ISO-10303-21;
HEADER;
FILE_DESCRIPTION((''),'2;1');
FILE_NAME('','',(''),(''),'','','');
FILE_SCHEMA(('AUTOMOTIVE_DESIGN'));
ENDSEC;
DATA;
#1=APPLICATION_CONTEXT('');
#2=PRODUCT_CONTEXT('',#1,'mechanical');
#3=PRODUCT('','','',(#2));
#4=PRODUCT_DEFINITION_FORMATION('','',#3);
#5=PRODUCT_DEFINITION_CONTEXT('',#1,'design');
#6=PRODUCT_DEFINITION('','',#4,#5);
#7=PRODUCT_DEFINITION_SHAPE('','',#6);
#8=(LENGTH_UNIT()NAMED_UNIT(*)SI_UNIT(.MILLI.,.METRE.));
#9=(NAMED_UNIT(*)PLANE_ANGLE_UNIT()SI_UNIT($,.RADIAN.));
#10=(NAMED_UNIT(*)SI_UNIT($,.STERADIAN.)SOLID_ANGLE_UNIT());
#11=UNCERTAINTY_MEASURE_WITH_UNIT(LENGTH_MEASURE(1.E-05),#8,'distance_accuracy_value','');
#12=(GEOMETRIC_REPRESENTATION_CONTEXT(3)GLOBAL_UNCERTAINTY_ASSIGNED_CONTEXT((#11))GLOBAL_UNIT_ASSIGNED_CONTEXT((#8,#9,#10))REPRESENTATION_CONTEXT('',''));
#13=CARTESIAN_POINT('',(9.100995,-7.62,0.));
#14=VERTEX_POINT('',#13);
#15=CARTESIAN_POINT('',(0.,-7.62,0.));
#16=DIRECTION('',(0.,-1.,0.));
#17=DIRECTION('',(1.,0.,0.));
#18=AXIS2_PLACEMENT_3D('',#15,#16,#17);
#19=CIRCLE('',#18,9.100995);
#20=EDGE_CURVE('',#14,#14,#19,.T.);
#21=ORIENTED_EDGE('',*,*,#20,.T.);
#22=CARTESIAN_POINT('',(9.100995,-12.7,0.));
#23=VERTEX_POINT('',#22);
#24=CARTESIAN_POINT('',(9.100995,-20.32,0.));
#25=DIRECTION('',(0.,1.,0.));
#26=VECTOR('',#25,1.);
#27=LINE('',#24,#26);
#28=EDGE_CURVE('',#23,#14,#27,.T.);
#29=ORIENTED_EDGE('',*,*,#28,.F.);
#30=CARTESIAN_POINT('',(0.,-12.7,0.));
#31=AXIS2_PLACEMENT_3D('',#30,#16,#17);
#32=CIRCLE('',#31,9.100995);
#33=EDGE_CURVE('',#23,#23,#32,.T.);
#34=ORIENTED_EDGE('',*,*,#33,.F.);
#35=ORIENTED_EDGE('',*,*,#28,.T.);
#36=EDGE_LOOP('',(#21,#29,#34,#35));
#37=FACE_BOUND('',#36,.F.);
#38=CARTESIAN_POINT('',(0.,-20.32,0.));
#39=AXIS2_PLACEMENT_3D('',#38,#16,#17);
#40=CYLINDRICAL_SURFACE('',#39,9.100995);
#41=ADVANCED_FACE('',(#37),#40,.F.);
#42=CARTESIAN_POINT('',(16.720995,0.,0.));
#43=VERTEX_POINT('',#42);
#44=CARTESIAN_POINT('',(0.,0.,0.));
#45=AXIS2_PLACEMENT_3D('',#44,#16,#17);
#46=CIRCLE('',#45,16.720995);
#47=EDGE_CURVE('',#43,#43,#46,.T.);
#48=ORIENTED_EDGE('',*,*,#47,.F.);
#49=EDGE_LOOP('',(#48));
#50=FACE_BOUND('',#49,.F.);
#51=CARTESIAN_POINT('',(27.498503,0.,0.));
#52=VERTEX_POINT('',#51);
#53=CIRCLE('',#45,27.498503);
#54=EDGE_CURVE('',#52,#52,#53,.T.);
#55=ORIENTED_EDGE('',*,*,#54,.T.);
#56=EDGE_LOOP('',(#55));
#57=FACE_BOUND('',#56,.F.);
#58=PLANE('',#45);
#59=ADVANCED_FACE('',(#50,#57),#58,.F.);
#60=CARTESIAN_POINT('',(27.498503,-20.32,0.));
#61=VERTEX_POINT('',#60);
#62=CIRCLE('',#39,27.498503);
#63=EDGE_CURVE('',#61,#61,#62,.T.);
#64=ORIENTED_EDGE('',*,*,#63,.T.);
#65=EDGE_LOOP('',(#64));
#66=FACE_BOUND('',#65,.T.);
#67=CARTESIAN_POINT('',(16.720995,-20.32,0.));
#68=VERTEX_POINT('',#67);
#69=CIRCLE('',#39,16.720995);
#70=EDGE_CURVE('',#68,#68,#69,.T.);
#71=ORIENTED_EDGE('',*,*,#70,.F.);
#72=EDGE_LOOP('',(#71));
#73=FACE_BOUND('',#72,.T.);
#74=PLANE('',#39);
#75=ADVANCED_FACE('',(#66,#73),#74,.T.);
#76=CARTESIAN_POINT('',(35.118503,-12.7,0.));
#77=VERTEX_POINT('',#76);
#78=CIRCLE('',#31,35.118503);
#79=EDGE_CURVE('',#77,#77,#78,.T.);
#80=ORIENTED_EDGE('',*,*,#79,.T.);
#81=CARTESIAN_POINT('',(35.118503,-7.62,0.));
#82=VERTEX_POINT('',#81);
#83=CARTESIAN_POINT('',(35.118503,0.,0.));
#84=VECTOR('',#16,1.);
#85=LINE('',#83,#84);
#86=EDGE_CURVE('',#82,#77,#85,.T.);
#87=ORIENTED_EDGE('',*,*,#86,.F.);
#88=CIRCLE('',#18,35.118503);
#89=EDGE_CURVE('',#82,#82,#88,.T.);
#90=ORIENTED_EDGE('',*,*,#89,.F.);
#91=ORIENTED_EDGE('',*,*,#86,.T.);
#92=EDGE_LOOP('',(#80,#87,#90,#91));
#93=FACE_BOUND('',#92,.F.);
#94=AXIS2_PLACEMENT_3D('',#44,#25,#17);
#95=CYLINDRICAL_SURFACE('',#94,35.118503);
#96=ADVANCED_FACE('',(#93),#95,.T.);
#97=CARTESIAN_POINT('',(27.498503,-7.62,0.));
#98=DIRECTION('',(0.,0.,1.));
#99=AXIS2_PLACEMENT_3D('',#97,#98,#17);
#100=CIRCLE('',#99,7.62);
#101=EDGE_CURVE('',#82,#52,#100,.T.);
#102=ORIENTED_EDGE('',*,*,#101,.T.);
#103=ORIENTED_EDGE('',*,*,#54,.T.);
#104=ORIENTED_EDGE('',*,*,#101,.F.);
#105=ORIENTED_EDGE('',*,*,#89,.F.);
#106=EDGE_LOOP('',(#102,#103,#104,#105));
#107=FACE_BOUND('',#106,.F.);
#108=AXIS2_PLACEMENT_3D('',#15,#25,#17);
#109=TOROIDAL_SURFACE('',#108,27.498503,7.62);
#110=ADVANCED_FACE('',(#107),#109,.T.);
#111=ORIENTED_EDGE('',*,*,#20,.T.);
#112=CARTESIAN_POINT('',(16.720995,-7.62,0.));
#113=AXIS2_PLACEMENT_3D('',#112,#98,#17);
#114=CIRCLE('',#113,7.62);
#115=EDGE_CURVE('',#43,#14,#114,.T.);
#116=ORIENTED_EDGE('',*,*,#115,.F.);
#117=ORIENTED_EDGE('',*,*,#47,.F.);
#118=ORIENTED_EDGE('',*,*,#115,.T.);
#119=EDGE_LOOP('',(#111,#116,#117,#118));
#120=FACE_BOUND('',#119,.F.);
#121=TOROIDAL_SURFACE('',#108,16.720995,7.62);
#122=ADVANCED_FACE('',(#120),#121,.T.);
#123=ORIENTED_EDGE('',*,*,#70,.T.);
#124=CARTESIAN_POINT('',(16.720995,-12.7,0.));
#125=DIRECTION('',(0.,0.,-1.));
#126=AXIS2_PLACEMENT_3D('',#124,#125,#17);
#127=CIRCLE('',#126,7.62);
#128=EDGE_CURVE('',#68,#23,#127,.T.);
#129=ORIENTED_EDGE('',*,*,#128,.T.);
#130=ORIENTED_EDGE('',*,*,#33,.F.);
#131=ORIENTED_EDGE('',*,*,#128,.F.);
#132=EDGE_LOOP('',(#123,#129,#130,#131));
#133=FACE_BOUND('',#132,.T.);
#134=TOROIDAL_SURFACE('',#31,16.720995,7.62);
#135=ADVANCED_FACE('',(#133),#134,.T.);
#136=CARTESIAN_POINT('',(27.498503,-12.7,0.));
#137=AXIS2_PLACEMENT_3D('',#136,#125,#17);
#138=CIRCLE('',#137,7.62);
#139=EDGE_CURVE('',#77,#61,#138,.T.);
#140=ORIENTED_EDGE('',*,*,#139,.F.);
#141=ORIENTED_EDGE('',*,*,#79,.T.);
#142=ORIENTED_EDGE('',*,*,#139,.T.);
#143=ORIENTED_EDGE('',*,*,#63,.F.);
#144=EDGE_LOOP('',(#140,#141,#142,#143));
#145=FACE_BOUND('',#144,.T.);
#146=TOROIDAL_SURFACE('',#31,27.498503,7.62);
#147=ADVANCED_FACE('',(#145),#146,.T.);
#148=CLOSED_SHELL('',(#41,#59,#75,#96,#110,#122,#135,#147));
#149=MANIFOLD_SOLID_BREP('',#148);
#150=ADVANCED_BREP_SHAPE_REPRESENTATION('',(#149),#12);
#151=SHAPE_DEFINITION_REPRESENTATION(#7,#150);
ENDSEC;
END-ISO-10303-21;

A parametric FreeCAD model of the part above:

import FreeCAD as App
import Part
import Sketcher

V = App.Vector


def edges_at(feature, points):
    """Names of the edges that pass closest to the given points."""
    edges = feature.Shape.Edges
    near = lambda p: min(range(len(edges)), key=lambda i: edges[i].distToShape(Part.Vertex(*p))[0])
    return sorted({f"Edge{near(p) + 1}" for p in points})

doc = App.newDocument("Part")
params = doc.addObject("Spreadsheet::Sheet", "Params")
for row, (alias, value) in enumerate([
    ("pad1_length", "0.8 in"),
    ("pocket1_length", "0.8 in"),
    ("fillet_radius", "0.3 in"),
], start=1):
    params.set(f"A{row}", alias)
    params.set(f"B{row}", "=" + value)
    params.setAlias(f"B{row}", alias)

body = doc.addObject("PartDesign::Body", "Body")

# Sketch on XZ plane
sketch1 = doc.addObject("Sketcher::SketchObject", "Sketch")
body.addObject(sketch1)
sketch1.AttachmentSupport = (doc.XZ_Plane, [""])
sketch1.MapMode = "FlatFace"
sketch1.addGeometry(Part.Circle(V(0, 0, 0), V(0, 0, 1), 35), False)
sketch1.addConstraint(Sketcher.Constraint("Coincident", 0, 3, -1, 1))
sketch1.addConstraint(Sketcher.Constraint("Diameter", 0, 70.237006))
pad1 = doc.addObject("PartDesign::Pad", "Pad")
body.addObject(pad1)
pad1.Profile = sketch1
pad1.setExpression("Length", "Params.pad1_length")

# Sketch on XZ plane
sketch2 = doc.addObject("Sketcher::SketchObject", "Sketch001")
body.addObject(sketch2)
sketch2.AttachmentSupport = (doc.XZ_Plane, [""])
sketch2.MapMode = "FlatFace"
sketch2.AttachmentOffset = App.Placement(V(0, 0, 0.8 * 25.4), App.Rotation())
sketch2.addGeometry(Part.Circle(V(0, 0, 0), V(0, 0, 1), 9), False)
sketch2.addConstraint(Sketcher.Constraint("Coincident", 0, 3, -1, 1))
sketch2.addConstraint(Sketcher.Constraint("Diameter", 0, 18.20199))
pocket1 = doc.addObject("PartDesign::Pocket", "Pocket")
body.addObject(pocket1)
pocket1.Profile = sketch2
pocket1.setExpression("Length", "Params.pocket1_length")
doc.recompute()

fillet = doc.addObject("PartDesign::Fillet", "Fillet")
body.addObject(fillet)
fillet.Base = (pocket1, edges_at(pocket1, [
    (-35.119, 0, 0),
    (-35.119, -20.32, 0),
    (-9.101, -20.32, 0),
    (-9.101, 0, 0),
]))
fillet.setExpression("Radius", "Params.fillet_radius")

doc.recompute()
